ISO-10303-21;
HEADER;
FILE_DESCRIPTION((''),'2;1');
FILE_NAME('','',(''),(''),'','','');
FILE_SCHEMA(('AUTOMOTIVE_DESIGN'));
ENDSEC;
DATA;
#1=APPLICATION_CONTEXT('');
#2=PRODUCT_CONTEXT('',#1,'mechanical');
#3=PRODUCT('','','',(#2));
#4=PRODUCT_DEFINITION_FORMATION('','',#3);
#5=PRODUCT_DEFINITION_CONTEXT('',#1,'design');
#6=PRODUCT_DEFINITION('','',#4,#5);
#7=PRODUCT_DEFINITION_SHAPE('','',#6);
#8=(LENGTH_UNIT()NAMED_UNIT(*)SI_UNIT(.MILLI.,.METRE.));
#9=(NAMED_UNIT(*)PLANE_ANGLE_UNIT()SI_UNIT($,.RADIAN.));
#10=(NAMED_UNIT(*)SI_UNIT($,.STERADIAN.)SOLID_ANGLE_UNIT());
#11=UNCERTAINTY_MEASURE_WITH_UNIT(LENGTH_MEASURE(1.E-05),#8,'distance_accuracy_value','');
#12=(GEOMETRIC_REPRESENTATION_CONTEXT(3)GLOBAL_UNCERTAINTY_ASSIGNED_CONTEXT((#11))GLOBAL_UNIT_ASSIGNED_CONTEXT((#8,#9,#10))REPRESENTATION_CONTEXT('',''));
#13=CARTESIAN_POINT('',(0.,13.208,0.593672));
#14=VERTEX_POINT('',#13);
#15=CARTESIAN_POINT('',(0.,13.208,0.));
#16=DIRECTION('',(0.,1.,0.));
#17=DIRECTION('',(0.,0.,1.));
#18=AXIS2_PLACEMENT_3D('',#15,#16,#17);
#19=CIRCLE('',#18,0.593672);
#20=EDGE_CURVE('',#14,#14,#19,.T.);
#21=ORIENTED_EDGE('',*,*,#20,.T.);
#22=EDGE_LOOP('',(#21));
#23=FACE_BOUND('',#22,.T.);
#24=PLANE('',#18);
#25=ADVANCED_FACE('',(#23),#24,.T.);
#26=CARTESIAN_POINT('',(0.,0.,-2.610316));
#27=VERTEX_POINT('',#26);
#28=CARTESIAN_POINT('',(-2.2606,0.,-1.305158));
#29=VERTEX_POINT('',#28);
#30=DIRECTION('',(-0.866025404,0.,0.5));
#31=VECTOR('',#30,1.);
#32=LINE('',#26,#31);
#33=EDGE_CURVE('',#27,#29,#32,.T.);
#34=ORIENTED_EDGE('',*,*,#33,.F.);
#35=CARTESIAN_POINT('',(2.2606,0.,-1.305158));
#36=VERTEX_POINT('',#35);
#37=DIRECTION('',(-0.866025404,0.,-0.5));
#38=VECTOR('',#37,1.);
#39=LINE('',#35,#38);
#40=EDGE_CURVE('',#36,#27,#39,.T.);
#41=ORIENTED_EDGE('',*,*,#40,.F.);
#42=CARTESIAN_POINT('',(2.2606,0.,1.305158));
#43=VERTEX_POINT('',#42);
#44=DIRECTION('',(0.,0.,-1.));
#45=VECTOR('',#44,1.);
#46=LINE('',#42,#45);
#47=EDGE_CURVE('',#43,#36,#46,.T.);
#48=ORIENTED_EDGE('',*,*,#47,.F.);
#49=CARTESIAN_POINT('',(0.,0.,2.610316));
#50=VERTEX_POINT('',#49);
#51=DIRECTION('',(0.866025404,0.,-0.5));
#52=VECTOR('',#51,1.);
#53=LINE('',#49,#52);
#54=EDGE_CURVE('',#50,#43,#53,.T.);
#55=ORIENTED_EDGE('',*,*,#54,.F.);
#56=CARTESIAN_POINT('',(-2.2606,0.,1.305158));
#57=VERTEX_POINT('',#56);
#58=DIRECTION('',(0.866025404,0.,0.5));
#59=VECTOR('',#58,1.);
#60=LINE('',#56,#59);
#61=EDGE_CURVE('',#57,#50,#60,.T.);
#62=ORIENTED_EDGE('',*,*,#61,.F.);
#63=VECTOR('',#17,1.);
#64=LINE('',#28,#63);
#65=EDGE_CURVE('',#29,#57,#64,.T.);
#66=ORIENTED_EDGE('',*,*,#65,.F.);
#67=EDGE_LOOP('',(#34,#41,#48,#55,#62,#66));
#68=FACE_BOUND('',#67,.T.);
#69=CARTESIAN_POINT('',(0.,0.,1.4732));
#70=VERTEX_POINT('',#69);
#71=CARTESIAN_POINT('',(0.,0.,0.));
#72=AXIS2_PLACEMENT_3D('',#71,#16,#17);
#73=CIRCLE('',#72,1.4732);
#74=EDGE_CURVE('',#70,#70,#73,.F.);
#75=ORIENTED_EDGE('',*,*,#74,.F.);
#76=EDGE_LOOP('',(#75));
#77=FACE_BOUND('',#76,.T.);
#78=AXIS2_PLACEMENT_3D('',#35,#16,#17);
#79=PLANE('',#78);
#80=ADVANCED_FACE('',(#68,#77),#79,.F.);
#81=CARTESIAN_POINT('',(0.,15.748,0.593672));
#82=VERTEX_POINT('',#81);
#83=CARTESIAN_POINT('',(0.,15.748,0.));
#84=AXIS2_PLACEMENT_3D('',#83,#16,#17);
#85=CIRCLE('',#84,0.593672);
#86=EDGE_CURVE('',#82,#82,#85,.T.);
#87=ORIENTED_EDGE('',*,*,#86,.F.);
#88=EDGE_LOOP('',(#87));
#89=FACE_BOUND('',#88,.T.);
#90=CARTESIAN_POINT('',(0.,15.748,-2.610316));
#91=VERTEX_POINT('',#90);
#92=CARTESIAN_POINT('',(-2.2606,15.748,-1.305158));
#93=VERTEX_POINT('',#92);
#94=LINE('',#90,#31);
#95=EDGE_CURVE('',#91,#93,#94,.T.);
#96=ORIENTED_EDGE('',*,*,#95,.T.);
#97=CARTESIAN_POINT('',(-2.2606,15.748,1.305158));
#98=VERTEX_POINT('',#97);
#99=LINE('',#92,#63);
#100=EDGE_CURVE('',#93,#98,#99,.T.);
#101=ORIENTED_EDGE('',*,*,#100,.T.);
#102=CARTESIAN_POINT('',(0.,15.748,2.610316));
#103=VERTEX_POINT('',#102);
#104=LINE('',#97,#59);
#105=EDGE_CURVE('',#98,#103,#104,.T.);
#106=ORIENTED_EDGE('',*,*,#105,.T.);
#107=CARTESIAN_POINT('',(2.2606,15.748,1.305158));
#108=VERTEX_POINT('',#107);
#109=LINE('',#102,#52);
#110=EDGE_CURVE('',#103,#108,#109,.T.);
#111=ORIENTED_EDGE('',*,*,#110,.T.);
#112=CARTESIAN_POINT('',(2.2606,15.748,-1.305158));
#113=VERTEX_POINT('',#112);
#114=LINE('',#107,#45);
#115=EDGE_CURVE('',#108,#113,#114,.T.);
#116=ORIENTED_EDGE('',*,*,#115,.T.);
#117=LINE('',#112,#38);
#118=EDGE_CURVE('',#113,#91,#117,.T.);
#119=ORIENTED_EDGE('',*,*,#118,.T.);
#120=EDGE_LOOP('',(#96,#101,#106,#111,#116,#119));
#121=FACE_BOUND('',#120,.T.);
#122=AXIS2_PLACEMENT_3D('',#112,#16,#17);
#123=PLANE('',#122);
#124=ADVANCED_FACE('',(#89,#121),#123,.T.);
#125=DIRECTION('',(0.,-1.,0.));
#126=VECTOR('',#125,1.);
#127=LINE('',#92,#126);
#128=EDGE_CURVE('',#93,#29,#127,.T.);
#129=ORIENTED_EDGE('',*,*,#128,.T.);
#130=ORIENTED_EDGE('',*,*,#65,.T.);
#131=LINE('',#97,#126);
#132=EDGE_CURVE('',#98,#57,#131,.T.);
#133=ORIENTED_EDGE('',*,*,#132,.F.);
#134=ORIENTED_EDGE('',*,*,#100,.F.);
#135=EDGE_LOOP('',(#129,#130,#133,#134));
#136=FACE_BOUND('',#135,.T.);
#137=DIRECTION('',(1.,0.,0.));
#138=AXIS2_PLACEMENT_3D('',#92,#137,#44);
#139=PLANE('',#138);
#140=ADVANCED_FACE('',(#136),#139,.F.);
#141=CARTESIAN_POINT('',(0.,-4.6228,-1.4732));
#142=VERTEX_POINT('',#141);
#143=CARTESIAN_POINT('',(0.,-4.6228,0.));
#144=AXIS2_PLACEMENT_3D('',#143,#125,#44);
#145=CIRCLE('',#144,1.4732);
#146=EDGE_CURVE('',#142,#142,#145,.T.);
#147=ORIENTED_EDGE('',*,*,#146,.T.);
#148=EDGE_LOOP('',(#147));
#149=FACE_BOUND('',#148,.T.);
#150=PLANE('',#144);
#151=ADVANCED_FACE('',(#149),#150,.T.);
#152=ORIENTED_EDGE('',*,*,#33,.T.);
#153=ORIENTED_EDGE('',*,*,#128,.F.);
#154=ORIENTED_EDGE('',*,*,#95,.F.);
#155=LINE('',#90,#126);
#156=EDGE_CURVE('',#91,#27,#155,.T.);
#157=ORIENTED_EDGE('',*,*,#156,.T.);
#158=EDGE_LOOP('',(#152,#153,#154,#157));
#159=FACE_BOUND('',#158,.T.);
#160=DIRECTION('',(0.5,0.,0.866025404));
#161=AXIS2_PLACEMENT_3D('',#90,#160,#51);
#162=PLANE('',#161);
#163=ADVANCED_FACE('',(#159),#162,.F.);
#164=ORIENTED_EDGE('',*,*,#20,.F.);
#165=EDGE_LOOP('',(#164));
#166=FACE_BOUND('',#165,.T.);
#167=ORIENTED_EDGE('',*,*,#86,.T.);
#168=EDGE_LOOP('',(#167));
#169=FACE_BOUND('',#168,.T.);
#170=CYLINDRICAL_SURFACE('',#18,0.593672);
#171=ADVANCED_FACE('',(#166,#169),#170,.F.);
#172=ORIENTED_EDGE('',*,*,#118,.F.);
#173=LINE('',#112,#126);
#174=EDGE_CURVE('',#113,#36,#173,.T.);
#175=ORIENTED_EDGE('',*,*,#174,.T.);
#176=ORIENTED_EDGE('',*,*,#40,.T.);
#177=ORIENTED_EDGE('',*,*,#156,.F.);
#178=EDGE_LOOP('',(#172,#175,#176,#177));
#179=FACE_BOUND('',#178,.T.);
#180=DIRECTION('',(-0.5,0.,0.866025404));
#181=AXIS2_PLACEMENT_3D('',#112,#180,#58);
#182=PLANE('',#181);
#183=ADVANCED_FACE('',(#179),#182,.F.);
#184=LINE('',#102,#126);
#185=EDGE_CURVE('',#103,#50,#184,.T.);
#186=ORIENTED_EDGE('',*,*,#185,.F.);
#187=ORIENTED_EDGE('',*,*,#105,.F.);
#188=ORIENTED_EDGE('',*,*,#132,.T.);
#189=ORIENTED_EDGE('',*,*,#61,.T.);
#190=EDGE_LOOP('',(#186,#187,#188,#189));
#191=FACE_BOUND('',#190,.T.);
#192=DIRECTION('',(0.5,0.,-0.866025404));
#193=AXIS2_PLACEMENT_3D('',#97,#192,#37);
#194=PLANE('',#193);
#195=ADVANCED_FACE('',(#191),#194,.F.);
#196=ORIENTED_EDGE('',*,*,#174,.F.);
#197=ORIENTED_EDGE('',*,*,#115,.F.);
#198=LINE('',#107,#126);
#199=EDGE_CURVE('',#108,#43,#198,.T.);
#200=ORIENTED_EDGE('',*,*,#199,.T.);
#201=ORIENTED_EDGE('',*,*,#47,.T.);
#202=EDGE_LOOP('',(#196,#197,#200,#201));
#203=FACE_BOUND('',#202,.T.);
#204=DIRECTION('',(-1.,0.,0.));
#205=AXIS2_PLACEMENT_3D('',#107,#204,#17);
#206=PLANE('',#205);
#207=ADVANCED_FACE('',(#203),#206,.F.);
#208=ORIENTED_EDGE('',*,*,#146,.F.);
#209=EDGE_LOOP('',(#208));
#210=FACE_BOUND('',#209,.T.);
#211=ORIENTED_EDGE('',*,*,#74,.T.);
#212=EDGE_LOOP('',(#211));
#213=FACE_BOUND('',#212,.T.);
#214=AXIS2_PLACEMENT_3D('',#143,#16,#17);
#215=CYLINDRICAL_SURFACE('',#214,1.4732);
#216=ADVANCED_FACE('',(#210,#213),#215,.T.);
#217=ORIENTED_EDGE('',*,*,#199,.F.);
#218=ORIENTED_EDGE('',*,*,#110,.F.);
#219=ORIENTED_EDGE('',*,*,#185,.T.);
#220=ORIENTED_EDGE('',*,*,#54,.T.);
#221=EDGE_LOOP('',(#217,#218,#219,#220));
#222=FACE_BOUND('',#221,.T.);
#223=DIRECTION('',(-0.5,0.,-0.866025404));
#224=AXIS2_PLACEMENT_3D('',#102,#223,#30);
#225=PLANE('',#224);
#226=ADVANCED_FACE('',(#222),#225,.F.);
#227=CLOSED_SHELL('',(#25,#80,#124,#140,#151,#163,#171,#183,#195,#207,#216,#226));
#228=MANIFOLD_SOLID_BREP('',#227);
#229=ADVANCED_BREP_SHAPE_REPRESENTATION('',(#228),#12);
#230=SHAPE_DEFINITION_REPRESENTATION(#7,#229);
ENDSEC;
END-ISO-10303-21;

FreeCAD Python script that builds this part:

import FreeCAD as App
import Part
import Sketcher
Q = App.Units.Quantity

doc = App.newDocument("Part")
body = doc.addObject("PartDesign::Body", "Body")

sketch1 = body.newObject("Sketcher::SketchObject", "Sketch")
sketch1.AttachmentSupport = (doc.getObject("XZ_Plane"), [""])
sketch1.MapMode = "FlatFace"
sketch1.addGeometry(Part.LineSegment(App.Vector(2.2606, -1.305158, 0), App.Vector(0, -2.610316, 0)), False)
sketch1.addGeometry(Part.LineSegment(App.Vector(0, -2.610316, 0), App.Vector(-2.2606, -1.305158, 0)), False)
sketch1.addGeometry(Part.LineSegment(App.Vector(-2.2606, -1.305158, 0), App.Vector(-2.2606, 1.305158, 0)), False)
sketch1.addGeometry(Part.LineSegment(App.Vector(-2.2606, 1.305158, 0), App.Vector(0, 2.610316, 0)), False)
sketch1.addGeometry(Part.LineSegment(App.Vector(0, 2.610316, 0), App.Vector(2.2606, 1.305158, 0)), False)
sketch1.addGeometry(Part.LineSegment(App.Vector(2.2606, 1.305158, 0), App.Vector(2.2606, -1.305158, 0)), False)
sketch1.addConstraint(Sketcher.Constraint("Coincident", 0, 2, 1, 1))
sketch1.addConstraint(Sketcher.Constraint("Coincident", 1, 2, 2, 1))
sketch1.addConstraint(Sketcher.Constraint("Coincident", 2, 2, 3, 1))
sketch1.addConstraint(Sketcher.Constraint("Coincident", 3, 2, 4, 1))
sketch1.addConstraint(Sketcher.Constraint("Coincident", 4, 2, 5, 1))
sketch1.addConstraint(Sketcher.Constraint("Coincident", 5, 2, 0, 1))
sketch1.addConstraint(Sketcher.Constraint("Vertical", 2))
sketch1.addConstraint(Sketcher.Constraint("Vertical", 5))
sketch1.addConstraint(Sketcher.Constraint("Symmetric", 0, 2, 3, 2, -1, 1))
sketch1.addConstraint(Sketcher.Constraint("Symmetric", 1, 2, 4, 2, -1, 1))
sketch1.addConstraint(Sketcher.Constraint("PointOnObject", 0, 2, -2))
sketch1.addConstraint(Sketcher.Constraint("Parallel", 0, 3))
sketch1.addConstraint(Sketcher.Constraint("Horizontal", 2, 2, 4, 2))
sketch1.addConstraint(Sketcher.Constraint("Angle", 0, Q("-150 deg")))
sketch1.addConstraint(Sketcher.Constraint("DistanceX", 1, 2, -1, 1, Q("0.089 in")))
sketch1.addConstraint(Sketcher.Constraint("DistanceY", 2, 1, 2, 2, 2.610316))
pad1 = body.newObject("PartDesign::Pad", "Pad")
pad1.Profile = sketch1
pad1.Length = Q("0.62 in")
pad1.Reversed = True

sketch2 = body.newObject("Sketcher::SketchObject", "Sketch001")
sketch2.AttachmentSupport = (doc.getObject("XZ_Plane"), [""])
sketch2.MapMode = "FlatFace"
sketch2.addGeometry(Part.Circle(App.Vector(0, 0, 0), App.Vector(0, 0, 1), 1.4732), False)
sketch2.addConstraint(Sketcher.Constraint("Coincident", 0, 3, -1, 1))
sketch2.addConstraint(Sketcher.Constraint("Diameter", 0, Q("0.116 in")))
pad2 = body.newObject("PartDesign::Pad", "Pad001")
pad2.Profile = sketch2
pad2.Length = Q("0.182 in")

sketch3 = body.newObject("Sketcher::SketchObject", "Sketch002")
sketch3.AttachmentSupport = (doc.getObject("XZ_Plane"), [""])
sketch3.MapMode = "FlatFace"
sketch3.AttachmentOffset = App.Placement(App.Vector(0, 0, -0.62 * 25.4), App.Rotation())
sketch3.addGeometry(Part.Circle(App.Vector(0, 0, 0), App.Vector(0, 0, 1), 0.593672), False)
sketch3.addConstraint(Sketcher.Constraint("Coincident", 0, 3, -1, 1))
sketch3.addConstraint(Sketcher.Constraint("Diameter", 0, 1.187344))
pocket1 = body.newObject("PartDesign::Pocket", "Pocket")
pocket1.Profile = sketch3
pocket1.Length = Q("0.1 in")
pocket1.Reversed = True

doc.recompute()
